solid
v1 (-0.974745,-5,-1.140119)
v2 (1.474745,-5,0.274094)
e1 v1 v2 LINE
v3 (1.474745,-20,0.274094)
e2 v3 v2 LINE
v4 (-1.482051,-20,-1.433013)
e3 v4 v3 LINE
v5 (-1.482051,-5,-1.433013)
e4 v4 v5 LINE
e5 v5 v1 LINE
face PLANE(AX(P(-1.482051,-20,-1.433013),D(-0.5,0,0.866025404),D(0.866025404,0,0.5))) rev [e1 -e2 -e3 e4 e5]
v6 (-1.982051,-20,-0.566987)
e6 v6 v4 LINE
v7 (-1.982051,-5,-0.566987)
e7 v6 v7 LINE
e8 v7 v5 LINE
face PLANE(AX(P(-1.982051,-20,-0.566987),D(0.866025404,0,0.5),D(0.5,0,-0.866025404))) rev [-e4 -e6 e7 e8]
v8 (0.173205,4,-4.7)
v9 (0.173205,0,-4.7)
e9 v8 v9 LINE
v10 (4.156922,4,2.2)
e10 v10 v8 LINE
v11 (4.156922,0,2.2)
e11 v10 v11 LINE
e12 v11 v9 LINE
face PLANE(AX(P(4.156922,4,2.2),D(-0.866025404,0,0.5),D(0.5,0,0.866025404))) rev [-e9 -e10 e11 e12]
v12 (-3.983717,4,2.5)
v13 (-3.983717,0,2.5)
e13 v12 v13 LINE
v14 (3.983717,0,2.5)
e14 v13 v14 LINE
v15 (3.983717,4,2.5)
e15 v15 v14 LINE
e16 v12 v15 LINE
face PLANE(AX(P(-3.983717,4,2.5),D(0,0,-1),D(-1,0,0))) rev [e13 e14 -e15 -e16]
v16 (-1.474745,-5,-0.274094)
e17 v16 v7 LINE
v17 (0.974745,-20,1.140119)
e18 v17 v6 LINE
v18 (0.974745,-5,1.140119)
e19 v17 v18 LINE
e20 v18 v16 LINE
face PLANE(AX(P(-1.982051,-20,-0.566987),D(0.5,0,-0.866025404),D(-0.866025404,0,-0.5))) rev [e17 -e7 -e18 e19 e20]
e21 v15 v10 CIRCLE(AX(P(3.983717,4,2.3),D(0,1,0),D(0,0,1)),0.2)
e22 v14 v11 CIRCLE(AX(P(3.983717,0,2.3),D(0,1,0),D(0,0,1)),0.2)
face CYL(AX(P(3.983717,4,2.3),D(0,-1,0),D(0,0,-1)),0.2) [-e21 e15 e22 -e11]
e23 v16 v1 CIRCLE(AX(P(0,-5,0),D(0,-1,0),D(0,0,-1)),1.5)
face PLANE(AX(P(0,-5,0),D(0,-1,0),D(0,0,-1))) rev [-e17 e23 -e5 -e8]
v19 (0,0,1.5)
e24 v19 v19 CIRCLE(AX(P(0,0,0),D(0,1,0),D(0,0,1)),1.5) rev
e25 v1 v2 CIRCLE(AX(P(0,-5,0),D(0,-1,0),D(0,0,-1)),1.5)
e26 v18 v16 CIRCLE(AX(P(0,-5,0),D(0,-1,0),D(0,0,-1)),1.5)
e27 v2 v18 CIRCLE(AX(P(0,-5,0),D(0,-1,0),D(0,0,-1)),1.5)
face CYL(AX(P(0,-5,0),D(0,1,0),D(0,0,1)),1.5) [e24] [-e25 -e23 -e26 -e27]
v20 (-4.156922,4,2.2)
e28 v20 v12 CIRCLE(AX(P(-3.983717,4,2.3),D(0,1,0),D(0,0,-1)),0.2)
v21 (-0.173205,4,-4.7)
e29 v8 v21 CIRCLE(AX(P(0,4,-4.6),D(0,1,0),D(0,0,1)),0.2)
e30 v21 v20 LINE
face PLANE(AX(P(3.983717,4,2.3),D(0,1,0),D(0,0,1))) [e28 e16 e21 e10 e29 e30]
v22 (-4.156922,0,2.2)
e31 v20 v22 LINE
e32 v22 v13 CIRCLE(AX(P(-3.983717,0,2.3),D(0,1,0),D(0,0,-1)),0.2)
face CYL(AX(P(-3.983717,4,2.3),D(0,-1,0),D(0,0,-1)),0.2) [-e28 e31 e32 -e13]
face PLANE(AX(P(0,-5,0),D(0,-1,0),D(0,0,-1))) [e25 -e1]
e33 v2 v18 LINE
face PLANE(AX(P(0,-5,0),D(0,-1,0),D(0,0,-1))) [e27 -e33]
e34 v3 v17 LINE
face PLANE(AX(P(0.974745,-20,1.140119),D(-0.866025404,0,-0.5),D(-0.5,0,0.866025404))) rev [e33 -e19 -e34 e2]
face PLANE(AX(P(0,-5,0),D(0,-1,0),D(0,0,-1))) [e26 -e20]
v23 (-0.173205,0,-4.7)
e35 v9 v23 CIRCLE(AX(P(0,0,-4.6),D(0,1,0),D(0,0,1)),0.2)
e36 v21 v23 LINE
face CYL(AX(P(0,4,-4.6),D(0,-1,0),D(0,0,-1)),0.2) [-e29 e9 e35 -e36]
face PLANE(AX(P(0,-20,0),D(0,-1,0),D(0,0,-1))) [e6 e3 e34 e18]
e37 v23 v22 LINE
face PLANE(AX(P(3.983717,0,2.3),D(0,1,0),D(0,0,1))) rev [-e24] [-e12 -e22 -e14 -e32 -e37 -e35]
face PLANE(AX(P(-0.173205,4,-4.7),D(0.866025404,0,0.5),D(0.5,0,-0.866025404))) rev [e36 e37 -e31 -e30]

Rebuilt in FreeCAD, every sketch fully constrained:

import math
import FreeCAD as App
import Part
import Sketcher

V = App.Vector
Q = App.Units.Quantity


def add_polygon(sketch, points):
    """Adds a closed chain of lines whose ends are joined by coincident constraints."""
    first, n = sketch.GeometryCount, len(points)
    for a, b in zip(points, points[1:] + points[:1]):
        sketch.addGeometry(Part.LineSegment(App.Vector(*a, 0), App.Vector(*b, 0)), False)
    for i in range(n):
        sketch.addConstraint(Sketcher.Constraint("Coincident", first + i, 2, first + (i + 1) % n, 1))

doc = App.newDocument("Part")
body = doc.addObject("PartDesign::Body", "Body")

sketch1 = body.newObject("Sketcher::SketchObject", "Sketch")
sketch1.AttachmentSupport = (doc.getObject("XZ_Plane"), [""])
sketch1.MapMode = "FlatFace"
sketch1.addGeometry(Part.LineSegment(V(-0.17, -4.7, 0), V(-4.16, 2.2, 0)), False)
sketch1.addGeometry(Part.ArcOfCircle(Part.Circle(V(-3.98, 2.3, 0), V(0, 0, 1), 0.2), math.radians(90), math.radians(210)), False)
sketch1.addGeometry(Part.LineSegment(V(-3.98, 2.5, 0), V(3.98, 2.5, 0)), False)
sketch1.addGeometry(Part.ArcOfCircle(Part.Circle(V(3.98, 2.3, 0), V(0, 0, 1), 0.2), math.radians(-30), math.radians(90)), False)
sketch1.addGeometry(Part.LineSegment(V(4.16, 2.2, 0), V(0.17, -4.7, 0)), False)
sketch1.addGeometry(Part.ArcOfCircle(Part.Circle(V(0, -4.6, 0), V(0, 0, 1), 0.2), math.radians(-150), math.radians(-30)), False)
sketch1.addConstraint(Sketcher.Constraint("Tangent", 0, 2, 1, 2))
sketch1.addConstraint(Sketcher.Constraint("Tangent", 1, 1, 2, 1))
sketch1.addConstraint(Sketcher.Constraint("Tangent", 2, 2, 3, 2))
sketch1.addConstraint(Sketcher.Constraint("Tangent", 3, 1, 4, 1))
sketch1.addConstraint(Sketcher.Constraint("Tangent", 4, 2, 5, 2))
sketch1.addConstraint(Sketcher.Constraint("Tangent", 5, 1, 0, 1))
sketch1.addConstraint(Sketcher.Constraint("Horizontal", 2))
sketch1.addConstraint(Sketcher.Constraint("Equal", 1, 3))
sketch1.addConstraint(Sketcher.Constraint("Equal", 3, 5))
sketch1.addConstraint(Sketcher.Constraint("Symmetric", 0, 2, 3, 1, -2))
sketch1.addConstraint(Sketcher.Constraint("Radius", 1, Q("0.2 mm")))
sketch1.addConstraint(Sketcher.Constraint("Angle", 0, Q("120 deg")))
sketch1.addConstraint(Sketcher.Constraint("DistanceY", 4, 2, 3, 3, Q("7 mm")))
sketch1.addConstraint(Sketcher.Constraint("DistanceY", -1, 1, 1, 3, Q("2.3 mm")))
pad1 = body.newObject("PartDesign::Pad", "Pad")
pad1.Profile = sketch1
pad1.Length = 4
pad1.Reversed = True

sketch2 = body.newObject("Sketcher::SketchObject", "Sketch001")
sketch2.AttachmentSupport = (doc.getObject("XZ_Plane"), [""])
sketch2.MapMode = "FlatFace"
sketch2.addGeometry(Part.Circle(V(0, 0, 0), V(0, 0, 1), 1.5), False)
sketch2.addConstraint(Sketcher.Constraint("Coincident", 0, 3, -1, 1))
sketch2.addConstraint(Sketcher.Constraint("Diameter", 0, Q("3 mm")))
pad2 = body.newObject("PartDesign::Pad", "Pad001")
pad2.Profile = sketch2
pad2.Length = 5

sketch3 = body.newObject("Sketcher::SketchObject", "Sketch002")
sketch3.AttachmentSupport = (doc.getObject("XZ_Plane"), [""])
sketch3.MapMode = "FlatFace"
sketch3.AttachmentOffset = App.Placement(V(0, 0, 5), App.Rotation())
add_polygon(sketch3, [(1, 1.1), (-2, -0.6), (-1.5, -1.4), (1.5, 0.3)])
sketch3.addConstraint(Sketcher.Constraint("Perpendicular", 0, 1))
sketch3.addConstraint(Sketcher.Constraint("Perpendicular", 1, 2))
sketch3.addConstraint(Sketcher.Constraint("Perpendicular", 2, 3))
sketch3.addConstraint(Sketcher.Constraint("Angle", 0, Q("-150 deg")))
sketch3.addConstraint(Sketcher.Constraint("Distance", 1, Q("1 mm")))
sketch3.addConstraint(Sketcher.Constraint("DistanceX", 0, 2, -1, 1, Q("1.982051 mm")))
sketch3.addConstraint(Sketcher.Constraint("DistanceY", -1, 1, 3, 2, Q("1.140119 mm")))
sketch3.addConstraint(Sketcher.Constraint("DistanceY", 0, 2, 2, 2, Q("0.841081 mm")))
pad3 = body.newObject("PartDesign::Pad", "Pad002")
pad3.Profile = sketch3
pad3.Length = 15

doc.recompute()
